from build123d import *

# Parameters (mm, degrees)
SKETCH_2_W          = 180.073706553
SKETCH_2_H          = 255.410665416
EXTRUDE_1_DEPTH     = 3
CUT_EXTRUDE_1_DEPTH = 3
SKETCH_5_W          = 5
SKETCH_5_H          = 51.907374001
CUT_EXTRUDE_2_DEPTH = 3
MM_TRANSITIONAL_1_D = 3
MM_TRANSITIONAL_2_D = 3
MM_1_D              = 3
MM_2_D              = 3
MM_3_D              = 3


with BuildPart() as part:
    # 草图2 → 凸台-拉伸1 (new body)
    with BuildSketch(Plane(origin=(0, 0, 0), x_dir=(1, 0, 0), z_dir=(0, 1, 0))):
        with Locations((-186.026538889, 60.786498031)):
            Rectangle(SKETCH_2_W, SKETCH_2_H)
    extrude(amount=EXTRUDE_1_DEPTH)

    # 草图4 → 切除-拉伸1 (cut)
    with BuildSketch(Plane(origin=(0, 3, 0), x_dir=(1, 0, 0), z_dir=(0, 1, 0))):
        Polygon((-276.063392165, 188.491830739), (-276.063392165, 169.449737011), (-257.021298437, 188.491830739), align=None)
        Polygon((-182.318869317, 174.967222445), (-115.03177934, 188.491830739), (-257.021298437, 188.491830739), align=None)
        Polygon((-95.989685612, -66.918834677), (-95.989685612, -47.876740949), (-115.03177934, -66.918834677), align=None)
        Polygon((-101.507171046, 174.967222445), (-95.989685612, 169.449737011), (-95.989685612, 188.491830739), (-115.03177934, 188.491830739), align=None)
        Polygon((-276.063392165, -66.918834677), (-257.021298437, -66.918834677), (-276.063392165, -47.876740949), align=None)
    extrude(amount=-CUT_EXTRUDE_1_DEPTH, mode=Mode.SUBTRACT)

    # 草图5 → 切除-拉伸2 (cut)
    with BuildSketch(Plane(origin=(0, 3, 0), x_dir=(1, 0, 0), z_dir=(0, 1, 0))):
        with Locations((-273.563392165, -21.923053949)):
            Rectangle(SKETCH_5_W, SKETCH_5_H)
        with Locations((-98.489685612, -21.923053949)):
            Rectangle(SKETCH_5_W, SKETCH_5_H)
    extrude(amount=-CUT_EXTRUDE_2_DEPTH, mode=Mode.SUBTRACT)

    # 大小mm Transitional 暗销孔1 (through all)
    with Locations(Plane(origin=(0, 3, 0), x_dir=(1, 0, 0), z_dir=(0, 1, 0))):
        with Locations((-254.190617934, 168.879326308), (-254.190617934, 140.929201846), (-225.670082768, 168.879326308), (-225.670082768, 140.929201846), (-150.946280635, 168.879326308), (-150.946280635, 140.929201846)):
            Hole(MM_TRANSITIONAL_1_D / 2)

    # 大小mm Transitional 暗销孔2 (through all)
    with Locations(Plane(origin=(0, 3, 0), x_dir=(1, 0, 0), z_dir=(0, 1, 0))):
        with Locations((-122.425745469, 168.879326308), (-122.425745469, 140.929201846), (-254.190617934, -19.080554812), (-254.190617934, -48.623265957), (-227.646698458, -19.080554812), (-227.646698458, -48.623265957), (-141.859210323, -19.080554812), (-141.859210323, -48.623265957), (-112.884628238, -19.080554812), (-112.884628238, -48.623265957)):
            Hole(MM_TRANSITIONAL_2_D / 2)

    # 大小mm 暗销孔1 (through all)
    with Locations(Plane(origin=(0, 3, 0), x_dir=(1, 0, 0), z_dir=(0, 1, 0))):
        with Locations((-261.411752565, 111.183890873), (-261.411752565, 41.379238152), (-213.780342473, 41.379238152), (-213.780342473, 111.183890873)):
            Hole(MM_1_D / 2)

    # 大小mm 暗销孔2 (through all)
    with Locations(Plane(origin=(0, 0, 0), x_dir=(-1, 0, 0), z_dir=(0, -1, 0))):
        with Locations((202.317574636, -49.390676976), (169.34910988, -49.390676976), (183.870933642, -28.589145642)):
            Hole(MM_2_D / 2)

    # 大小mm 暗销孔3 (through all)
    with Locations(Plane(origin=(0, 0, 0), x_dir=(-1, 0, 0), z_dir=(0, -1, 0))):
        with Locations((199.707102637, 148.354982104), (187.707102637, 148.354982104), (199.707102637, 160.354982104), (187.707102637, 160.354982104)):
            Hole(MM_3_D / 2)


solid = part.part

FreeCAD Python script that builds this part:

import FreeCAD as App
import Part
import Sketcher
from FreeCAD import Vector

doc = App.newDocument("Part")
body = doc.addObject("PartDesign::Body", "Body")

# Sketch on XZ plane
sketch1 = body.newObject("Sketcher::SketchObject", "Sketch")
sketch1.AttachmentSupport = (doc.getObject("XZ_Plane"), [""])
sketch1.MapMode = "FlatFace"
sketch1.addGeometry([
    Part.LineSegment(Vector(-276, -188, 0), Vector(-276, 67, 0)),
    Part.LineSegment(Vector(-276, 67, 0), Vector(-96, 67, 0)),
    Part.LineSegment(Vector(-96, 67, 0), Vector(-96, -188, 0)),
    Part.LineSegment(Vector(-96, -188, 0), Vector(-276, -188, 0)),
], False)
sketch1.addConstraint([
    Sketcher.Constraint("Coincident", 0, 2, 1, 1),
    Sketcher.Constraint("Coincident", 1, 2, 2, 1),
    Sketcher.Constraint("Coincident", 2, 2, 3, 1),
    Sketcher.Constraint("Coincident", 3, 2, 0, 1),
    Sketcher.Constraint("Vertical", 0),
    Sketcher.Constraint("Horizontal", 1),
    Sketcher.Constraint("Vertical", 2),
    Sketcher.Constraint("Horizontal", 3),
    Sketcher.Constraint("DistanceX", 1, 1, 1, 2, 180.073707),
    Sketcher.Constraint("DistanceY", 0, 1, 0, 2, 255.410665),
    Sketcher.Constraint("DistanceY", 2, 2, -1, 1, 188.491831),
    Sketcher.Constraint("DistanceX", 0, 2, -1, 1, 276.063392),
])
pad1 = body.newObject("PartDesign::Pad", "Pad")
pad1.Profile = sketch1
pad1.Length = 3
pad1.Reversed = True

# Sketch on XZ plane
sketch2 = body.newObject("Sketcher::SketchObject", "Sketch001")
sketch2.AttachmentSupport = (doc.getObject("XZ_Plane"), [""])
sketch2.MapMode = "FlatFace"
sketch2.AttachmentOffset = App.Placement(Vector(0, 0, -3), App.Rotation())
sketch2.addGeometry([
    Part.LineSegment(Vector(-276, -188, 0), Vector(-276, -169, 0)),  # 0
    Part.LineSegment(Vector(-276, -169, 0), Vector(-257, -188, 0)),  # 1
    Part.LineSegment(Vector(-257, -188, 0), Vector(-276, -188, 0)),  # 2
    Part.LineSegment(Vector(-182, -175, 0), Vector(-115, -188, 0)),  # 3
    Part.LineSegment(Vector(-115, -188, 0), Vector(-257, -188, 0)),  # 4
    Part.LineSegment(Vector(-257, -188, 0), Vector(-182, -175, 0)),  # 5
    Part.LineSegment(Vector(-96, 67, 0), Vector(-96, 48, 0)),  # 6
    Part.LineSegment(Vector(-96, 48, 0), Vector(-115, 67, 0)),  # 7
    Part.LineSegment(Vector(-115, 67, 0), Vector(-96, 67, 0)),  # 8
    Part.LineSegment(Vector(-96, -169, 0), Vector(-96, -188, 0)),  # 9
    Part.LineSegment(Vector(-96, -188, 0), Vector(-115, -188, 0)),  # 10
    Part.LineSegment(Vector(-115, -188, 0), Vector(-96, -169, 0)),  # 11
    Part.LineSegment(Vector(-276, 67, 0), Vector(-257, 67, 0)),  # 12
    Part.LineSegment(Vector(-257, 67, 0), Vector(-276, 48, 0)),  # 13
    Part.LineSegment(Vector(-276, 48, 0), Vector(-276, 67, 0)),  # 14
], False)
sketch2.addConstraint([
    Sketcher.Constraint("Coincident", 0, 2, 1, 1),
    Sketcher.Constraint("Coincident", 1, 2, 2, 1),
    Sketcher.Constraint("Coincident", 2, 2, 0, 1),
    Sketcher.Constraint("Coincident", 3, 2, 4, 1),
    Sketcher.Constraint("Coincident", 4, 2, 5, 1),
    Sketcher.Constraint("Coincident", 5, 2, 3, 1),
    Sketcher.Constraint("Coincident", 6, 2, 7, 1),
    Sketcher.Constraint("Coincident", 7, 2, 8, 1),
    Sketcher.Constraint("Coincident", 8, 2, 6, 1),
    Sketcher.Constraint("Coincident", 9, 2, 10, 1),
    Sketcher.Constraint("Coincident", 10, 2, 11, 1),
    Sketcher.Constraint("Coincident", 11, 2, 9, 1),
    Sketcher.Constraint("Coincident", 12, 2, 13, 1),
    Sketcher.Constraint("Coincident", 13, 2, 14, 1),
    Sketcher.Constraint("Coincident", 14, 2, 12, 1),
    Sketcher.Constraint("Vertical", 0),
    Sketcher.Constraint("Horizontal", 2),
    Sketcher.Constraint("Horizontal", 4),
    Sketcher.Constraint("Vertical", 6),
    Sketcher.Constraint("Horizontal", 8),
    Sketcher.Constraint("Vertical", 9),
    Sketcher.Constraint("Horizontal", 10),
    Sketcher.Constraint("Horizontal", 12),
    Sketcher.Constraint("Vertical", 14),
    Sketcher.Constraint("Coincident", 4, 2, 1, 2),
    Sketcher.Constraint("Coincident", 10, 2, 3, 2),
    Sketcher.Constraint("Parallel", 1, 7),
    Sketcher.Constraint("Perpendicular", 7, 11),
    Sketcher.Constraint("Parallel", 11, 13),
    Sketcher.Constraint("Horizontal", 0, 2, 11, 2),
    Sketcher.Constraint("Horizontal", 8, 2, 12, 2),
    Sketcher.Constraint("Horizontal", 6, 2, 13, 2),
    Sketcher.Constraint("Vertical", 3, 2, 7, 2),
    Sketcher.Constraint("Vertical", 8, 2, 9, 2),
    Sketcher.Constraint("Vertical", 4, 2, 12, 2),
    Sketcher.Constraint("Vertical", 2, 2, 13, 2),
    Sketcher.Constraint("DistanceX", 4, 2, 4, 1, 141.989519),
    Sketcher.Constraint("DistanceX", 1, 2, -1, 1, 257.021298),
    Sketcher.Constraint("Distance", 5, 75.916849),
    Sketcher.Constraint("DistanceX", 2, 2, 2, 1, 19.042094),
    Sketcher.Constraint("DistanceY", 1, 2, -1, 1, 188.491831),
    Sketcher.Constraint("DistanceX", 5, 2, -1, 1, 182.318869),
    Sketcher.Constraint("DistanceY", -1, 1, 6, 2, 47.876741),
])
pocket1 = body.newObject("PartDesign::Pocket", "Pocket")
pocket1.Profile = sketch2
pocket1.Length = 3
pocket1.Reversed = True

# Sketch on XZ plane
sketch3 = body.newObject("Sketcher::SketchObject", "Sketch002")
sketch3.AttachmentSupport = (doc.getObject("XZ_Plane"), [""])
sketch3.MapMode = "FlatFace"
sketch3.AttachmentOffset = App.Placement(Vector(0, 0, -3), App.Rotation())
sketch3.addGeometry([
    Part.LineSegment(Vector(-276, -4, 0), Vector(-276, 48, 0)),  # 0
    Part.LineSegment(Vector(-276, 48, 0), Vector(-271, 48, 0)),  # 1
    Part.LineSegment(Vector(-271, 48, 0), Vector(-271, -4, 0)),  # 2
    Part.LineSegment(Vector(-271, -4, 0), Vector(-276, -4, 0)),  # 3
    Part.LineSegment(Vector(-101, -4, 0), Vector(-101, 48, 0)),  # 4
    Part.LineSegment(Vector(-101, 48, 0), Vector(-96, 48, 0)),  # 5
    Part.LineSegment(Vector(-96, 48, 0), Vector(-96, -4, 0)),  # 6
    Part.LineSegment(Vector(-96, -4, 0), Vector(-101, -4, 0)),  # 7
], False)
sketch3.addConstraint([
    Sketcher.Constraint("Coincident", 0, 2, 1, 1),
    Sketcher.Constraint("Coincident", 1, 2, 2, 1),
    Sketcher.Constraint("Coincident", 2, 2, 3, 1),
    Sketcher.Constraint("Coincident", 3, 2, 0, 1),
    Sketcher.Constraint("Coincident", 4, 2, 5, 1),
    Sketcher.Constraint("Coincident", 5, 2, 6, 1),
    Sketcher.Constraint("Coincident", 6, 2, 7, 1),
    Sketcher.Constraint("Coincident", 7, 2, 4, 1),
    Sketcher.Constraint("Vertical", 0),
    Sketcher.Constraint("Horizontal", 1),
    Sketcher.Constraint("Vertical", 2),
    Sketcher.Constraint("Horizontal", 3),
    Sketcher.Constraint("Vertical", 4),
    Sketcher.Constraint("Horizontal", 5),
    Sketcher.Constraint("Vertical", 6),
    Sketcher.Constraint("Horizontal", 7),
    Sketcher.Constraint("Horizontal", 1, 2, 4, 2),
    Sketcher.Constraint("Horizontal", 3, 2, 6, 2),
    Sketcher.Constraint("Equal", 3, 5),
    Sketcher.Constraint("DistanceX", 1, 1, 1, 2, 5.0),
    Sketcher.Constraint("DistanceY", 0, 1, 0, 2, 51.907374),
    Sketcher.Constraint("DistanceY", -1, 1, 0, 2, 47.876741),
    Sketcher.Constraint("DistanceX", 0, 2, -1, 1, 276.063392),
    Sketcher.Constraint("DistanceX", 4, 2, -1, 1, 100.989686),
])
pocket2 = body.newObject("PartDesign::Pocket", "Pocket001")
pocket2.Profile = sketch3
pocket2.Length = 3
pocket2.Reversed = True

# Sketch on XZ plane
sketch4 = body.newObject("Sketcher::SketchObject", "Sketch003")
sketch4.AttachmentSupport = (doc.getObject("XZ_Plane"), [""])
sketch4.MapMode = "FlatFace"
sketch4.AttachmentOffset = App.Placement(Vector(0, 0, -3), App.Rotation())
sketch4.addGeometry([
    Part.Circle(Vector(-254.2, -168.9, 0), Vector(0, 0, 1), 1.5),  # 0
    Part.Circle(Vector(-254.2, -140.9, 0), Vector(0, 0, 1), 1.5),  # 1
    Part.Circle(Vector(-225.7, -168.9, 0), Vector(0, 0, 1), 1.5),  # 2
    Part.Circle(Vector(-225.7, -140.9, 0), Vector(0, 0, 1), 1.5),  # 3
    Part.Circle(Vector(-150.9, -168.9, 0), Vector(0, 0, 1), 1.5),  # 4
    Part.Circle(Vector(-150.9, -140.9, 0), Vector(0, 0, 1), 1.5),  # 5
], False)
sketch4.addConstraint([
    Sketcher.Constraint("Equal", 0, 1),
    Sketcher.Constraint("Equal", 1, 2),
    Sketcher.Constraint("Equal", 2, 3),
    Sketcher.Constraint("Equal", 3, 4),
    Sketcher.Constraint("Equal", 4, 5),
    Sketcher.Constraint("Horizontal", 0, 3, 2, 3),
    Sketcher.Constraint("Horizontal", 1, 3, 3, 3),
    Sketcher.Constraint("Horizontal", 2, 3, 4, 3),
    Sketcher.Constraint("Horizontal", 3, 3, 5, 3),
    Sketcher.Constraint("Vertical", 0, 3, 1, 3),
    Sketcher.Constraint("Vertical", 2, 3, 3, 3),
    Sketcher.Constraint("Vertical", 4, 3, 5, 3),
    Sketcher.Constraint("Diameter", 0, 3.0),
    Sketcher.Constraint("DistanceY", 1, 3, -1, 1, 140.929202),
    Sketcher.Constraint("DistanceX", 4, 3, -1, 1, 150.946281),
    Sketcher.Constraint("DistanceX", 0, 3, -1, 1, 254.190618),
    Sketcher.Constraint("DistanceY", 0, 3, -1, 1, 168.879326),
    Sketcher.Constraint("DistanceX", 2, 3, -1, 1, 225.670083),
])
doc.recompute()
hole = body.newObject("PartDesign::Hole", "Hole")
hole.Profile = sketch4
hole.ThreadType = "None"
hole.Diameter = 3
hole.DepthType = "ThroughAll"
hole.Reversed = True

# Sketch on XZ plane
sketch5 = body.newObject("Sketcher::SketchObject", "Sketch004")
sketch5.AttachmentSupport = (doc.getObject("XZ_Plane"), [""])
sketch5.MapMode = "FlatFace"
sketch5.AttachmentOffset = App.Placement(Vector(0, 0, -3), App.Rotation())
sketch5.addGeometry([
    Part.Circle(Vector(-122.4, -168.9, 0), Vector(0, 0, 1), 1.5),  # 0
    Part.Circle(Vector(-122.4, -140.9, 0), Vector(0, 0, 1), 1.5),  # 1
    Part.Circle(Vector(-254.2, 19.1, 0), Vector(0, 0, 1), 1.5),  # 2
    Part.Circle(Vector(-254.2, 48.6, 0), Vector(0, 0, 1), 1.5),  # 3
    Part.Circle(Vector(-227.6, 19.1, 0), Vector(0, 0, 1), 1.5),  # 4
    Part.Circle(Vector(-227.6, 48.6, 0), Vector(0, 0, 1), 1.5),  # 5
    Part.Circle(Vector(-141.9, 19.1, 0), Vector(0, 0, 1), 1.5),  # 6
    Part.Circle(Vector(-141.9, 48.6, 0), Vector(0, 0, 1), 1.5),  # 7
    Part.Circle(Vector(-112.9, 19.1, 0), Vector(0, 0, 1), 1.5),  # 8
    Part.Circle(Vector(-112.9, 48.6, 0), Vector(0, 0, 1), 1.5),  # 9
], False)
sketch5.addConstraint([
    Sketcher.Constraint("Equal", 0, 1),
    Sketcher.Constraint("Equal", 1, 2),
    Sketcher.Constraint("Equal", 2, 3),
    Sketcher.Constraint("Equal", 3, 4),
    Sketcher.Constraint("Equal", 4, 5),
    Sketcher.Constraint("Equal", 5, 6),
    Sketcher.Constraint("Equal", 6, 7),
    Sketcher.Constraint("Equal", 7, 8),
    Sketcher.Constraint("Equal", 8, 9),
    Sketcher.Constraint("Horizontal", 2, 3, 4, 3),
    Sketcher.Constraint("Horizontal", 3, 3, 5, 3),
    Sketcher.Constraint("Horizontal", 4, 3, 6, 3),
    Sketcher.Constraint("Horizontal", 5, 3, 7, 3),
    Sketcher.Constraint("Horizontal", 6, 3, 8, 3),
    Sketcher.Constraint("Horizontal", 7, 3, 9, 3),
    Sketcher.Constraint("Vertical", 0, 3, 1, 3),
    Sketcher.Constraint("Vertical", 2, 3, 3, 3),
    Sketcher.Constraint("Vertical", 4, 3, 5, 3),
    Sketcher.Constraint("Vertical", 6, 3, 7, 3),
    Sketcher.Constraint("Vertical", 8, 3, 9, 3),
    Sketcher.Constraint("Diameter", 0, 3.0),
    Sketcher.Constraint("DistanceY", 1, 3, -1, 1, 140.929202),
    Sketcher.Constraint("DistanceX", 4, 3, -1, 1, 227.646698),
    Sketcher.Constraint("DistanceX", 6, 3, -1, 1, 141.85921),
    Sketcher.Constraint("DistanceX", 8, 3, -1, 1, 112.884628),
    Sketcher.Constraint("DistanceY", 0, 3, 2, 3, 187.959881),
    Sketcher.Constraint("DistanceY", 2, 3, 3, 3, 29.542711),
    Sketcher.Constraint("DistanceX", 2, 3, 4, 3, 26.543919),
    Sketcher.Constraint("DistanceX", 0, 3, -1, 1, 122.425745),
    Sketcher.Constraint("DistanceY", 0, 3, -1, 1, 168.879326),
])
doc.recompute()
hole2 = body.newObject("PartDesign::Hole", "Hole001")
hole2.Profile = sketch5
hole2.ThreadType = "None"
hole2.Diameter = 3
hole2.DepthType = "ThroughAll"
hole2.Reversed = True

# Sketch on XZ plane
sketch6 = body.newObject("Sketcher::SketchObject", "Sketch005")
sketch6.AttachmentSupport = (doc.getObject("XZ_Plane"), [""])
sketch6.MapMode = "FlatFace"
sketch6.AttachmentOffset = App.Placement(Vector(0, 0, -3), App.Rotation())
sketch6.addGeometry([
    Part.Circle(Vector(-261.4, -111.2, 0), Vector(0, 0, 1), 1.5),
    Part.Circle(Vector(-261.4, -41.4, 0), Vector(0, 0, 1), 1.5),
    Part.Circle(Vector(-213.8, -41.4, 0), Vector(0, 0, 1), 1.5),
    Part.Circle(Vector(-213.8, -111.2, 0), Vector(0, 0, 1), 1.5),
], False)
sketch6.addConstraint([
    Sketcher.Constraint("Equal", 0, 1),
    Sketcher.Constraint("Equal", 1, 2),
    Sketcher.Constraint("Equal", 2, 3),
    Sketcher.Constraint("Horizontal", 1, 3, 2, 3),
    Sketcher.Constraint("Horizontal", 0, 3, 3, 3),
    Sketcher.Constraint("Vertical", 0, 3, 1, 3),
    Sketcher.Constraint("Vertical", 2, 3, 3, 3),
    Sketcher.Constraint("Diameter", 0, 3.0),
    Sketcher.Constraint("DistanceY", 0, 3, -1, 1, 111.183891),
    Sketcher.Constraint("DistanceY", 1, 3, -1, 1, 41.379238),
    Sketcher.Constraint("DistanceX", 1, 3, 2, 3, 47.63141),
    Sketcher.Constraint("DistanceX", 0, 3, -1, 1, 261.411753),
])
doc.recompute()
hole3 = body.newObject("PartDesign::Hole", "Hole002")
hole3.Profile = sketch6
hole3.ThreadType = "None"
hole3.Diameter = 3
hole3.DepthType = "ThroughAll"
hole3.Reversed = True

# Sketch on XZ plane
sketch7 = body.newObject("Sketcher::SketchObject", "Sketch006")
sketch7.AttachmentSupport = (doc.getObject("XZ_Plane"), [""])
sketch7.MapMode = "FlatFace"
sketch7.addGeometry([
    Part.Circle(Vector(-202.3, 49.4, 0), Vector(0, 0, 1), 1.5),
    Part.Circle(Vector(-169.3, 49.4, 0), Vector(0, 0, 1), 1.5),
    Part.Circle(Vector(-183.9, 28.6, 0), Vector(0, 0, 1), 1.5),
], False)
sketch7.addConstraint([
    Sketcher.Constraint("Equal", 0, 1),
    Sketcher.Constraint("Equal", 1, 2),
    Sketcher.Constraint("Horizontal", 0, 3, 1, 3),
    Sketcher.Constraint("Diameter", 0, 3.0),
    Sketcher.Constraint("DistanceX", 1, 3, -1, 1, 169.34911),
    Sketcher.Constraint("DistanceY", 2, 3, 1, 3, 20.801531),
    Sketcher.Constraint("DistanceX", 0, 3, 2, 3, 18.446641),
    Sketcher.Constraint("DistanceX", 0, 3, -1, 1, 202.317575),
    Sketcher.Constraint("DistanceY", -1, 1, 0, 3, 49.390677),
])
doc.recompute()
hole4 = body.newObject("PartDesign::Hole", "Hole003")
hole4.Profile = sketch7
hole4.ThreadType = "None"
hole4.Diameter = 3
hole4.DepthType = "ThroughAll"

# Sketch on XZ plane
sketch8 = body.newObject("Sketcher::SketchObject", "Sketch007")
sketch8.AttachmentSupport = (doc.getObject("XZ_Plane"), [""])
sketch8.MapMode = "FlatFace"
sketch8.addGeometry([
    Part.Circle(Vector(-199.7, -148.4, 0), Vector(0, 0, 1), 1.5),
    Part.Circle(Vector(-187.7, -148.4, 0), Vector(0, 0, 1), 1.5),
    Part.Circle(Vector(-199.7, -160.4, 0), Vector(0, 0, 1), 1.5),
    Part.Circle(Vector(-187.7, -160.4, 0), Vector(0, 0, 1), 1.5),
], False)
sketch8.addConstraint([
    Sketcher.Constraint("Equal", 0, 1),
    Sketcher.Constraint("Equal", 1, 2),
    Sketcher.Constraint("Equal", 2, 3),
    Sketcher.Constraint("Horizontal", 0, 3, 1, 3),
    Sketcher.Constraint("Horizontal", 2, 3, 3, 3),
    Sketcher.Constraint("Vertical", 0, 3, 2, 3),
    Sketcher.Constraint("Vertical", 1, 3, 3, 3),
    Sketcher.Constraint("Diameter", 0, 3.0),
    Sketcher.Constraint("DistanceX", 0, 3, 1, 3, 12.0),
    Sketcher.Constraint("DistanceY", 2, 3, 0, 3, 12.0),
    Sketcher.Constraint("DistanceX", 0, 3, -1, 1, 199.707103),
    Sketcher.Constraint("DistanceY", 0, 3, -1, 1, 148.354982),
])
doc.recompute()
hole5 = body.newObject("PartDesign::Hole", "Hole004")
hole5.Profile = sketch8
hole5.ThreadType = "None"
hole5.Diameter = 3
hole5.DepthType = "ThroughAll"

doc.recompute()
